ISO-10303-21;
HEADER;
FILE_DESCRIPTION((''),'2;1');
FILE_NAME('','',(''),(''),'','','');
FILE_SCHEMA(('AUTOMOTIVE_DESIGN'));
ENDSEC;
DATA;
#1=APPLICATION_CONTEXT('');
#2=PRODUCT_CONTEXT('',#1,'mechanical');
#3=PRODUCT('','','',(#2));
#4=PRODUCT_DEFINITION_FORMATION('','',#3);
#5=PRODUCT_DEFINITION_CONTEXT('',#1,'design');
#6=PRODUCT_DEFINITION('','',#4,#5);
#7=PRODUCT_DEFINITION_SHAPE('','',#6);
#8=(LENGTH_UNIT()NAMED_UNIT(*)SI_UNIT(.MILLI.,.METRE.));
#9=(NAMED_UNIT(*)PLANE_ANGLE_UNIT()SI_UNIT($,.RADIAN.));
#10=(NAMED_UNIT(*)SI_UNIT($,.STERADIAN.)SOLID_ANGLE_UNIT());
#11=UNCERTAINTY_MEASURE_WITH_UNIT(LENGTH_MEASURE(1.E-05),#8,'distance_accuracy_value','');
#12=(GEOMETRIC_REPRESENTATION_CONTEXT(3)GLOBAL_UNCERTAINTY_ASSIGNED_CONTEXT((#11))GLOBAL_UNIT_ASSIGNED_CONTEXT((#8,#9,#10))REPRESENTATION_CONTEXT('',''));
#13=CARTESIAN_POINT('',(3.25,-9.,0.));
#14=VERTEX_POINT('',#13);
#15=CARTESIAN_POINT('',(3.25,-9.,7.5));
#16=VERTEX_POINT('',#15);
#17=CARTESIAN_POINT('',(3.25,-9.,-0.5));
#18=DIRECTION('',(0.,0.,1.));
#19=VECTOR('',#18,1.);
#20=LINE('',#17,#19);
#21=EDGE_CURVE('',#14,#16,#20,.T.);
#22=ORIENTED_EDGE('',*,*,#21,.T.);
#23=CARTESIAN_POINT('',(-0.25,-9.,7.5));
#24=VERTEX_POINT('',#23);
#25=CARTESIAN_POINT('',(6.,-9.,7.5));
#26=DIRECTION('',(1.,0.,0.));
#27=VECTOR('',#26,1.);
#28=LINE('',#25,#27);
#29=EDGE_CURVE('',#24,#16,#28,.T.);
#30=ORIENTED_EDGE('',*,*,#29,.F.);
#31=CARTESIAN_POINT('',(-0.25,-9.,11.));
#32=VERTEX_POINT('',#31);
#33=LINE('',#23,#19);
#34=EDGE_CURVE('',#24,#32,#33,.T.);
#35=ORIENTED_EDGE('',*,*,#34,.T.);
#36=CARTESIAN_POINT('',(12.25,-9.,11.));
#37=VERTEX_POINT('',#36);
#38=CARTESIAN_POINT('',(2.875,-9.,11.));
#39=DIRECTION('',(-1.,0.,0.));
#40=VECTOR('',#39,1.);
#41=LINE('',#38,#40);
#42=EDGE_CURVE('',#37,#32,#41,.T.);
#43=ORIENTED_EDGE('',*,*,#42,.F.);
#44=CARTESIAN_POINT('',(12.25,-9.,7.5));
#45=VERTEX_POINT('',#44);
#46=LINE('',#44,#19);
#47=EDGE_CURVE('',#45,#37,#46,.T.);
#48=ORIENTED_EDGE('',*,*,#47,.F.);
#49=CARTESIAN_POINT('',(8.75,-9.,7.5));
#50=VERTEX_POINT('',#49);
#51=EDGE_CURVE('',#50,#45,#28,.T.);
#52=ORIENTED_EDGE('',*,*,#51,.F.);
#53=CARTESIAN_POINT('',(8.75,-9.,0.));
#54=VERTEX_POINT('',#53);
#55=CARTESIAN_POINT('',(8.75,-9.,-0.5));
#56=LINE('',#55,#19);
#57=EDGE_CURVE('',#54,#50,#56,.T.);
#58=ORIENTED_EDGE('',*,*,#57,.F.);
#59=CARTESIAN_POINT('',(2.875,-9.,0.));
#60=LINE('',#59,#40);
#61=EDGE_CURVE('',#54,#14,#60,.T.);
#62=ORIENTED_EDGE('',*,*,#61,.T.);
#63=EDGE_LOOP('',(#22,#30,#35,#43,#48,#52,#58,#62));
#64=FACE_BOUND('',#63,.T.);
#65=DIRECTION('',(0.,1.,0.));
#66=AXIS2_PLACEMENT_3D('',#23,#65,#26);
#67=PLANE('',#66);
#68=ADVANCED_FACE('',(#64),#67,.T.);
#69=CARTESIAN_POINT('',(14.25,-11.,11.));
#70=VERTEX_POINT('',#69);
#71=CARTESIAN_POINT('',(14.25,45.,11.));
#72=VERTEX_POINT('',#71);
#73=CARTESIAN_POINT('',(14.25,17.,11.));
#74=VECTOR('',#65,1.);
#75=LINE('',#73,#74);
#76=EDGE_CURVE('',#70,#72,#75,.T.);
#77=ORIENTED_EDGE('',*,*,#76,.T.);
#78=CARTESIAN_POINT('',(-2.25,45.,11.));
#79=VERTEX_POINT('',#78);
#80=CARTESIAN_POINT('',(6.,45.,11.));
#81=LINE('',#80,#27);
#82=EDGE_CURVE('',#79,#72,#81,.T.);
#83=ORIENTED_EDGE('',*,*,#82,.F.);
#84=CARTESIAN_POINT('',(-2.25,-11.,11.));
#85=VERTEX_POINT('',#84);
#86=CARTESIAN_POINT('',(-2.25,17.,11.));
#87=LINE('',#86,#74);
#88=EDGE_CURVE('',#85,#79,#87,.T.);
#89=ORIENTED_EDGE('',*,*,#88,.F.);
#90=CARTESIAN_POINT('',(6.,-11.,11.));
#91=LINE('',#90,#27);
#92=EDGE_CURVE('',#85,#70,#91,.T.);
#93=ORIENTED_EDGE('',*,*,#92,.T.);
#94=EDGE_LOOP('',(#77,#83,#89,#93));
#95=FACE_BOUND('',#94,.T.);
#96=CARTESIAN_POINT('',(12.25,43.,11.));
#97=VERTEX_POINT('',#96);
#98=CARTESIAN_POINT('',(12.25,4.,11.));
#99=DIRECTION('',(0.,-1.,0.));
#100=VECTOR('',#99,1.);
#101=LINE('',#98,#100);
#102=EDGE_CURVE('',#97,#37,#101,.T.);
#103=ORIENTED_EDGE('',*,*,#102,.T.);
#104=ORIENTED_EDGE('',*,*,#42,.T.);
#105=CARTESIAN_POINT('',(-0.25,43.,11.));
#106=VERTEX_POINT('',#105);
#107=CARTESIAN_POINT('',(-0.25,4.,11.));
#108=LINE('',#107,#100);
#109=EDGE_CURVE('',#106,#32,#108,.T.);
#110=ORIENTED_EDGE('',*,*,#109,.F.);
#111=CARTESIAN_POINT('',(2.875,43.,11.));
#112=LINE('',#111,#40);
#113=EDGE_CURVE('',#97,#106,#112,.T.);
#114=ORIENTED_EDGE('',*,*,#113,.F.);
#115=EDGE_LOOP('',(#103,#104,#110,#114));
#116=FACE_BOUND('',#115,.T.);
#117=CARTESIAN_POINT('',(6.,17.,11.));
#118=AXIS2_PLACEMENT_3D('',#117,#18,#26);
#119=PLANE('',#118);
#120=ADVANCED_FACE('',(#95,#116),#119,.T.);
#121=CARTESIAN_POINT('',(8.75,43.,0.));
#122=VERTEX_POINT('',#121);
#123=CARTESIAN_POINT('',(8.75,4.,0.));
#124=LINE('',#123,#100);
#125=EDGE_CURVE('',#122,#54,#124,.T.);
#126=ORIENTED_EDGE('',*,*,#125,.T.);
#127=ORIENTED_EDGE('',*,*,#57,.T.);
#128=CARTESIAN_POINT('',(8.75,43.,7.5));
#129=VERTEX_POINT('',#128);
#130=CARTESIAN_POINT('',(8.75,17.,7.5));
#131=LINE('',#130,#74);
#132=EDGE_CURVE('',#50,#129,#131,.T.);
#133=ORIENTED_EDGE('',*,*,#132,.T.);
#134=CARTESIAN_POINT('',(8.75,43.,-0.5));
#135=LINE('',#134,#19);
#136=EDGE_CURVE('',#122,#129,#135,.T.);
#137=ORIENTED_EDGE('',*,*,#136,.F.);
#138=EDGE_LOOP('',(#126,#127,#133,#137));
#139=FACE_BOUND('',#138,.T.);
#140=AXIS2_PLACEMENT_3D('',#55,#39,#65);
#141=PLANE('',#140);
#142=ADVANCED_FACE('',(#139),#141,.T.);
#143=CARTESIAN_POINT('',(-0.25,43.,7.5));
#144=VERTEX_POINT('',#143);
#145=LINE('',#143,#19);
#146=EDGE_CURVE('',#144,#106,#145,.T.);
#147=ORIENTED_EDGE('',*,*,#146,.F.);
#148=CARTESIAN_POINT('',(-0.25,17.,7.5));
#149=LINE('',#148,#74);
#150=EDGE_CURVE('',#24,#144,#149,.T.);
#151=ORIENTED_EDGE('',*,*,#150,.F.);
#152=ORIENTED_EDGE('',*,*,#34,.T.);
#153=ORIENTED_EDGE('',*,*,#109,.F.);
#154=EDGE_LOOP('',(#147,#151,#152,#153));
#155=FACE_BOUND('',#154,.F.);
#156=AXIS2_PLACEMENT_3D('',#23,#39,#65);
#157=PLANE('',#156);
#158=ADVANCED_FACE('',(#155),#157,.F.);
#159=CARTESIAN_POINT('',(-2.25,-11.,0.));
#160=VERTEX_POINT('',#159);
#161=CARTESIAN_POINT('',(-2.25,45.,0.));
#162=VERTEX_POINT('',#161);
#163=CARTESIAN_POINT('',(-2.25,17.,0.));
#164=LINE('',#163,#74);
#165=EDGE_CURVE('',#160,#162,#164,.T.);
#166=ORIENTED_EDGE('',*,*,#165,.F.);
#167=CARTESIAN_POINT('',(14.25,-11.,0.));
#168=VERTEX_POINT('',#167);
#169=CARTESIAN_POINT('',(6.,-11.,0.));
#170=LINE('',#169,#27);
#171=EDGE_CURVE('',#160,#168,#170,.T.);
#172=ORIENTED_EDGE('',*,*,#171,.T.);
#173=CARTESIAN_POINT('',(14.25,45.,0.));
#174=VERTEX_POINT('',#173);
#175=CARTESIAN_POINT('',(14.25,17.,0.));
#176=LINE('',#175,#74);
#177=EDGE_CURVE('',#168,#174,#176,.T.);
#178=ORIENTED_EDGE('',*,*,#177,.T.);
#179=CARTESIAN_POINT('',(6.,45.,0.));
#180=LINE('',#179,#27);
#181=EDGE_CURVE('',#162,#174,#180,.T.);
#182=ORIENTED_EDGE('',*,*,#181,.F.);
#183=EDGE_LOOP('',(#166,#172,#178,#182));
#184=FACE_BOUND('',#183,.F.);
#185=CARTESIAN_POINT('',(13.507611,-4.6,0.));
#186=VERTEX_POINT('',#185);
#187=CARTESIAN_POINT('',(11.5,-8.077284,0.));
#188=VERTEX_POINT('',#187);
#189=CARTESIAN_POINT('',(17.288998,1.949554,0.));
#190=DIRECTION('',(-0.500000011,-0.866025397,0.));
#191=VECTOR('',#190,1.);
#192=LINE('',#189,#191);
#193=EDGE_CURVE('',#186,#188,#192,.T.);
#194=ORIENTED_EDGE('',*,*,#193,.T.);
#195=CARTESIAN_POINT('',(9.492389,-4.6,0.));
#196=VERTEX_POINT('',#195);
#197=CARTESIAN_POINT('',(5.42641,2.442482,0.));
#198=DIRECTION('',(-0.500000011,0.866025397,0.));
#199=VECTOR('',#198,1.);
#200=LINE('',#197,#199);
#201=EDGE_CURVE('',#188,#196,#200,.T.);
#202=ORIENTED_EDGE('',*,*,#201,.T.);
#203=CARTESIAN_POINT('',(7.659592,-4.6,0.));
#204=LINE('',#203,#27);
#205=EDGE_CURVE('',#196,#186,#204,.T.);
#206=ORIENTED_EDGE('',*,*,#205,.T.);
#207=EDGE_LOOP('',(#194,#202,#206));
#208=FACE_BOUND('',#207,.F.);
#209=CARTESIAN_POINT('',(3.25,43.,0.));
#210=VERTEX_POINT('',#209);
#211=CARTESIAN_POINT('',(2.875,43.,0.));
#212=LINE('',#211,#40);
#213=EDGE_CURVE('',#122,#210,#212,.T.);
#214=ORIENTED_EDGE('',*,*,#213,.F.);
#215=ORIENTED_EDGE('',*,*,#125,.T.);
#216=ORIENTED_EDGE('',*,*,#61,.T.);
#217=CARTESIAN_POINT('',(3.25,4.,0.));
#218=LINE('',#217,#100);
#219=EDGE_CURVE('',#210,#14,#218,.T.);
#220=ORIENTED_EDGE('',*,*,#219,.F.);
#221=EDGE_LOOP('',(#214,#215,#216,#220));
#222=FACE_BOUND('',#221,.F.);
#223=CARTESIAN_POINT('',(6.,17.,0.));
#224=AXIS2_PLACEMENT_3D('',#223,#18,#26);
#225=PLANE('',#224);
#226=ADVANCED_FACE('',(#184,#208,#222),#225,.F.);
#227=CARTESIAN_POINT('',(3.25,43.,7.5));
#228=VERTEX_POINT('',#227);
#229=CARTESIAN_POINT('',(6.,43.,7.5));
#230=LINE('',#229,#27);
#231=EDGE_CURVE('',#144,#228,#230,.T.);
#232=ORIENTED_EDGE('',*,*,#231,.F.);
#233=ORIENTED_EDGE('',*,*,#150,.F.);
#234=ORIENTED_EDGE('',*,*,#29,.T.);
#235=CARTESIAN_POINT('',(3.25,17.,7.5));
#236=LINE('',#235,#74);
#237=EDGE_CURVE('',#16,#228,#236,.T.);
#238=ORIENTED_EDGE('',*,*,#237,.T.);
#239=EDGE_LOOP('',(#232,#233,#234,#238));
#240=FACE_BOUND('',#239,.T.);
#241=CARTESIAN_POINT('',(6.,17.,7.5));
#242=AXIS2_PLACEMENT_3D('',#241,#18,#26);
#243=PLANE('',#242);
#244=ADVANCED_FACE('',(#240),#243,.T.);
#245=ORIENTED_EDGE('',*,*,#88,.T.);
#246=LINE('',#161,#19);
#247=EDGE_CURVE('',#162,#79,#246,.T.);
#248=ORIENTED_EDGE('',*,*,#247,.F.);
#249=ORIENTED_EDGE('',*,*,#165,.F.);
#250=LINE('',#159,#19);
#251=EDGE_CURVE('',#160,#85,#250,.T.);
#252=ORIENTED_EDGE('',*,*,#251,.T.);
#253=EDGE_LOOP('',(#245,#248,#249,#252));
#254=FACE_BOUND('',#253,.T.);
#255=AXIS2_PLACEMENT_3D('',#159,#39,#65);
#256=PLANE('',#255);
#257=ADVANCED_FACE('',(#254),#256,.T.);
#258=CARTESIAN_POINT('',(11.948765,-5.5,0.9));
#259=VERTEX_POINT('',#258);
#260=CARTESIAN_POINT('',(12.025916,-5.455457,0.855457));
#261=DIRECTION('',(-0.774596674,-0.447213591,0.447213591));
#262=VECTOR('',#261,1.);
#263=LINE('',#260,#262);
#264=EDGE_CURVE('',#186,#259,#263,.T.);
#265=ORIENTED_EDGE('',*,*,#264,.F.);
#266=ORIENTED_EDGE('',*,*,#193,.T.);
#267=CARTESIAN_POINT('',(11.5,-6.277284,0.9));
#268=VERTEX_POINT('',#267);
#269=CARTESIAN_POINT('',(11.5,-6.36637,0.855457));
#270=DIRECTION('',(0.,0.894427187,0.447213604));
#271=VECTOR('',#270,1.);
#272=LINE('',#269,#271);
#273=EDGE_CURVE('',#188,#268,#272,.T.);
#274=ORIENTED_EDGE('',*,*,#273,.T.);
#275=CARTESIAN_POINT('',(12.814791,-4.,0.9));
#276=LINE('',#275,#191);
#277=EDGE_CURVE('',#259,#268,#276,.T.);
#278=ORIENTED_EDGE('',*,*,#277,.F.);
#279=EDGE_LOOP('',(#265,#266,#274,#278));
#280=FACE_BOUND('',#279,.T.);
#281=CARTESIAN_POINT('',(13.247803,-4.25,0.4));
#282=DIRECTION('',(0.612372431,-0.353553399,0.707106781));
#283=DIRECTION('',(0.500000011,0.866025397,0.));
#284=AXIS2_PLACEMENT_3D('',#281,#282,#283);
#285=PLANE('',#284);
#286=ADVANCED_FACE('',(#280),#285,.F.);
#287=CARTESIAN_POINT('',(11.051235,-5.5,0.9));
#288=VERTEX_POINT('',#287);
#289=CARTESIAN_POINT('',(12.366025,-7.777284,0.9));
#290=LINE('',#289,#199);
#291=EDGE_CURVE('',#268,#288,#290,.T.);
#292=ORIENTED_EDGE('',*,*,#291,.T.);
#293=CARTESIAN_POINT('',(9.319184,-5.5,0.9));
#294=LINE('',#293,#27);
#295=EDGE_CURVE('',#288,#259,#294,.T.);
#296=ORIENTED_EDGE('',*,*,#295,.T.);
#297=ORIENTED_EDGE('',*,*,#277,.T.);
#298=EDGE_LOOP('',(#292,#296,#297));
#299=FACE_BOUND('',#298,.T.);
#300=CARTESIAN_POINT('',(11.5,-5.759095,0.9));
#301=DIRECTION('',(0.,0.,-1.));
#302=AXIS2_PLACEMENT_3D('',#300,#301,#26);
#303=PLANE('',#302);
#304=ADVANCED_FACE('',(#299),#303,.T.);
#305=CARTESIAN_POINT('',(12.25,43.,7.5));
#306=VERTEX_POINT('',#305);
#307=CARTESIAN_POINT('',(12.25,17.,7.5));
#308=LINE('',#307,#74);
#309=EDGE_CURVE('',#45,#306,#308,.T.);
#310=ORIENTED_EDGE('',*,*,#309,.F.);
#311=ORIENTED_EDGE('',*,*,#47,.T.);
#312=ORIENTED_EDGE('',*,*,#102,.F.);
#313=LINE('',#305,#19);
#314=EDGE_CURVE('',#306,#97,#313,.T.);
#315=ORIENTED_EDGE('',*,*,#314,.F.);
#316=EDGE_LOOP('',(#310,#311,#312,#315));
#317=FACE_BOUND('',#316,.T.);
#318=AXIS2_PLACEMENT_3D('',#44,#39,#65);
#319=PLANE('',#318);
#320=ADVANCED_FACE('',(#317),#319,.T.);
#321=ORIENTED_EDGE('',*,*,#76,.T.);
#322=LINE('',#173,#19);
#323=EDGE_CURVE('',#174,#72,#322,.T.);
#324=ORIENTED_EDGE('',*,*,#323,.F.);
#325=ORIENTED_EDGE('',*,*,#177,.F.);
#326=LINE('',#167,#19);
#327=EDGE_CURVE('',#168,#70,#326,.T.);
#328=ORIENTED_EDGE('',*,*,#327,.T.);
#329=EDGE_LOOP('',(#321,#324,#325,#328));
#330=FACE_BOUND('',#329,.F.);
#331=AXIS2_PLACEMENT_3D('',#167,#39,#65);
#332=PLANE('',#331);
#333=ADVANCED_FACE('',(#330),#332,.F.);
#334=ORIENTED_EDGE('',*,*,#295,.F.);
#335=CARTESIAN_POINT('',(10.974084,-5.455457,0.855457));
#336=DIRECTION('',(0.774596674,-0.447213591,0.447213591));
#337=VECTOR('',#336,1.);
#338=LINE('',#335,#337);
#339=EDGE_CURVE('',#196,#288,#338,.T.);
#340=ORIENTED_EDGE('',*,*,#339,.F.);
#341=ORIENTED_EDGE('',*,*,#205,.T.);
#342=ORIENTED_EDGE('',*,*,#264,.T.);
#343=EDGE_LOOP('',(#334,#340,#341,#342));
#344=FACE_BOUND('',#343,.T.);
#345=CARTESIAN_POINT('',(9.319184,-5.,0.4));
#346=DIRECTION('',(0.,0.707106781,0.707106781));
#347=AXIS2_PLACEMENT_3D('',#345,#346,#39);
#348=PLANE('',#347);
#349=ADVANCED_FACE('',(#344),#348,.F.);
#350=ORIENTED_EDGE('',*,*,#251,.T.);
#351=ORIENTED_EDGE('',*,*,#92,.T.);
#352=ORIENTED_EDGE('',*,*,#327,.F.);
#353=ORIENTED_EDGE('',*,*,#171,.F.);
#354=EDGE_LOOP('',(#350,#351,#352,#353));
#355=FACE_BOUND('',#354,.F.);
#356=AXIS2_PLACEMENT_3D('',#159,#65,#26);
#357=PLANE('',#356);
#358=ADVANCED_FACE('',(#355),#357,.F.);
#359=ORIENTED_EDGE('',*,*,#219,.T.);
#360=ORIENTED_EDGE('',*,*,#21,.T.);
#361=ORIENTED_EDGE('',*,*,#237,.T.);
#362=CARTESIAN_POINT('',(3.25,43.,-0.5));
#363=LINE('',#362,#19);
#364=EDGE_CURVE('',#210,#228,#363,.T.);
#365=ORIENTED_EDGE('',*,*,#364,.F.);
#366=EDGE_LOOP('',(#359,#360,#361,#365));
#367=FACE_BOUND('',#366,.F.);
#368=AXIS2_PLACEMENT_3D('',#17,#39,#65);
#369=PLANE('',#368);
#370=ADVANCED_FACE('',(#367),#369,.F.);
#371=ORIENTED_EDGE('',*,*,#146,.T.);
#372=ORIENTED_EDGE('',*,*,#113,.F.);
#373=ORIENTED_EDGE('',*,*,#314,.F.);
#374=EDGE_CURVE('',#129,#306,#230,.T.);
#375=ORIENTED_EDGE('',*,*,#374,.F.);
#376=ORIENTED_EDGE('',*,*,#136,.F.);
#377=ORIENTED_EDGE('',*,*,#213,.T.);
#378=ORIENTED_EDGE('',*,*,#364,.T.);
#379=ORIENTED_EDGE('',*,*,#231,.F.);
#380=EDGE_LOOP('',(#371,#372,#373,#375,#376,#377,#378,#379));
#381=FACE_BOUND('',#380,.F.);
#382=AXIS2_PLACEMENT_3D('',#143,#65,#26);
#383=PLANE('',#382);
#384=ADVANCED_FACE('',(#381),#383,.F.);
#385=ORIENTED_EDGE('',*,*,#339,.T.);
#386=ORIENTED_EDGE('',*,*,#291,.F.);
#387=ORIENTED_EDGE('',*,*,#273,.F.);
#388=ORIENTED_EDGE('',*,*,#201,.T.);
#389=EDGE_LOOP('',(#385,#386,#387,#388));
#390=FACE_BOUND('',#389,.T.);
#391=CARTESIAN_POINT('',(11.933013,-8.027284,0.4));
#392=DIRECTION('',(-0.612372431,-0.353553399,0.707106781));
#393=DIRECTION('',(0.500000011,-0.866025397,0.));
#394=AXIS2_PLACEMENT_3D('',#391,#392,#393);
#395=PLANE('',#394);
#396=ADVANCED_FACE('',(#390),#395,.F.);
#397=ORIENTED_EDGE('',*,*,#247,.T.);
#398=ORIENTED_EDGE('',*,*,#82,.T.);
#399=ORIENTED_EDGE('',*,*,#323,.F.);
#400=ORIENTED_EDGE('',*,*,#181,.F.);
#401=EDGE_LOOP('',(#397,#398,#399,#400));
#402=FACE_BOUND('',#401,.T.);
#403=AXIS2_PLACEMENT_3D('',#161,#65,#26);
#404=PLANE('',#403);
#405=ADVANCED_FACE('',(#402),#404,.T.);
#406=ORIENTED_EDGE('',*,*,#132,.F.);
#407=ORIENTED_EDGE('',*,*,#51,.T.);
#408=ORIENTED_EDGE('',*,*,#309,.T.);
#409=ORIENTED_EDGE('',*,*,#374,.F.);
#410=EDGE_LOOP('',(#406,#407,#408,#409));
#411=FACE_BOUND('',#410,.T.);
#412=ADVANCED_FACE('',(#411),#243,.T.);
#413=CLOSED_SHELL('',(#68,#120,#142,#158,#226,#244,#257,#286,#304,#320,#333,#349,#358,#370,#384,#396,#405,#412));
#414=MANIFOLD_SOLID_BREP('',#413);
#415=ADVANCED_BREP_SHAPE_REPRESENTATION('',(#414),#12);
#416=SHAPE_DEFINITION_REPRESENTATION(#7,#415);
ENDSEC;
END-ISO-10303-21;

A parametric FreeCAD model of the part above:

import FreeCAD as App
import Part
import Sketcher
from FreeCAD import Vector
Q = App.Units.Quantity


def edges_at(feature, points):
    """Names of the edges that pass closest to the given points."""
    edges = feature.Shape.Edges
    near = lambda p: min(range(len(edges)), key=lambda i: edges[i].distToShape(Part.Vertex(*p))[0])
    return sorted({f"Edge{near(p) + 1}" for p in points})

doc = App.newDocument("Part")
params = doc.addObject("Spreadsheet::Sheet", "Params")
for row, (alias, value) in enumerate([
    ("sketch1_height", "52 mm"),
    ("sketch1_width", "5.5 mm"),
    ("pad1_length", "8 mm"),
    ("pad2_length", "1.1 mm"),
    ("chamfer_size", "1 mm"),
    ("sketch3_height", "52 mm"),
    ("sketch3_width", "12.5 mm"),
    ("pad3_length", "4 mm"),
    ("sketch4_height", "56 mm"),
    ("sketch4_width", "16.5 mm"),
    ("pad4_length", "11 mm"),
], start=1):
    params.set(f"A{row}", alias)
    params.set(f"B{row}", "=" + value)
    params.setAlias(f"B{row}", alias)

body = doc.addObject("PartDesign::Body", "Body")

# Sketch on XY plane
sketch1 = body.newObject("Sketcher::SketchObject", "Sketch")
sketch1.AttachmentSupport = (doc.getObject("XY_Plane"), [""])
sketch1.MapMode = "FlatFace"
sketch1.AttachmentOffset = App.Placement(Vector(0, 0, -0.5), App.Rotation())
sketch1.addGeometry([
    Part.LineSegment(Vector(3, 43, 0), Vector(3, -9, 0)),
    Part.LineSegment(Vector(3, -9, 0), Vector(9, -9, 0)),
    Part.LineSegment(Vector(9, -9, 0), Vector(9, 43, 0)),
    Part.LineSegment(Vector(9, 43, 0), Vector(3, 43, 0)),
], False)
sketch1.addConstraint([
    Sketcher.Constraint("Coincident", 0, 2, 1, 1),
    Sketcher.Constraint("Coincident", 1, 2, 2, 1),
    Sketcher.Constraint("Coincident", 2, 2, 3, 1),
    Sketcher.Constraint("Coincident", 3, 2, 0, 1),
    Sketcher.Constraint("Vertical", 0),
    Sketcher.Constraint("Horizontal", 1),
    Sketcher.Constraint("Vertical", 2),
    Sketcher.Constraint("Horizontal", 3),
    Sketcher.Constraint("DistanceY", 0, 2, 0, 1, Q("52 mm")),
    Sketcher.Constraint("DistanceX", 1, 1, 1, 2, Q("5.5 mm")),
    Sketcher.Constraint("DistanceY", 0, 2, -1, 1, Q("9 mm")),
    Sketcher.Constraint("DistanceX", -1, 1, 0, 2, Q("3.25 mm")),
])
sketch1.setExpression("Constraints[8]", "Params.sketch1_height")
sketch1.setExpression("Constraints[9]", "Params.sketch1_width")
pad1 = body.newObject("PartDesign::Pad", "Pad")
pad1.Profile = sketch1
pad1.setExpression("Length", "Params.pad1_length")
body2 = doc.addObject("PartDesign::Body", "Body001")

# Sketch on XY plane
sketch2 = body2.newObject("Sketcher::SketchObject", "Sketch001")
sketch2.AttachmentSupport = (doc.getObject("XY_Plane001"), [""])
sketch2.MapMode = "FlatFace"
sketch2.addGeometry([
    Part.LineSegment(Vector(0, 20.8, 0), Vector(-2.2, 17, 0)),
    Part.LineSegment(Vector(-2.2, 17, 0), Vector(2.2, 17, 0)),
    Part.LineSegment(Vector(2.2, 17, 0), Vector(0, 20.8, 0)),
], False)
sketch2.addConstraint([
    Sketcher.Constraint("Coincident", 0, 2, 1, 1),
    Sketcher.Constraint("Coincident", 1, 2, 2, 1),
    Sketcher.Constraint("Coincident", 2, 2, 0, 1),
    Sketcher.Constraint("Horizontal", 1),
    Sketcher.Constraint("PointOnObject", 2, 2, -2),
    Sketcher.Constraint("Equal", 0, 2),
    Sketcher.Constraint("Angle", 0, Q("-120.000001 deg")),
    Sketcher.Constraint("DistanceY", -1, 1, 0, 2, Q("17 mm")),
    Sketcher.Constraint("Distance", 0, Q("4.361632 mm")),
])
pad2 = body2.newObject("PartDesign::Pad", "Pad001")
pad2.Profile = sketch2
pad2.setExpression("Length", "Params.pad2_length")
doc.recompute()

chamfer = body2.newObject("PartDesign::Chamfer", "Chamfer")
chamfer.Base = (pad2, edges_at(pad2, [(-1.09, 18.889, 0), (0, 17, 0), (1.09, 18.889, 0)]))
chamfer.setExpression("Size", "Params.chamfer_size")
body3 = doc.addObject("PartDesign::Body", "Body002")
doc.recompute()

body2.Placement = App.Placement(Vector(11.5, 12.5, 0.9), App.Rotation(Vector(1, 0, 0), 180))
boolean = body3.newObject("PartDesign::Boolean", "Boolean")
boolean.Type = "Fuse"
boolean.addObjects([body2])
body4 = doc.addObject("PartDesign::Body", "Body003")
body4.AllowCompound = True

# Sketch on XY plane
sketch3 = body4.newObject("Sketcher::SketchObject", "Sketch002")
sketch3.AttachmentSupport = (doc.getObject("XY_Plane003"), [""])
sketch3.MapMode = "FlatFace"
sketch3.AttachmentOffset = App.Placement(Vector(0, 0, 7.5), App.Rotation())
sketch3.addGeometry([
    Part.LineSegment(Vector(0, 43, 0), Vector(0, -9, 0)),
    Part.LineSegment(Vector(0, -9, 0), Vector(12, -9, 0)),
    Part.LineSegment(Vector(12, -9, 0), Vector(12, 43, 0)),
    Part.LineSegment(Vector(12, 43, 0), Vector(0, 43, 0)),
], False)
sketch3.addConstraint([
    Sketcher.Constraint("Coincident", 0, 2, 1, 1),
    Sketcher.Constraint("Coincident", 1, 2, 2, 1),
    Sketcher.Constraint("Coincident", 2, 2, 3, 1),
    Sketcher.Constraint("Coincident", 3, 2, 0, 1),
    Sketcher.Constraint("Vertical", 0),
    Sketcher.Constraint("Horizontal", 1),
    Sketcher.Constraint("Vertical", 2),
    Sketcher.Constraint("Horizontal", 3),
    Sketcher.Constraint("DistanceY", 0, 2, 0, 1, Q("52 mm")),
    Sketcher.Constraint("DistanceX", 1, 1, 1, 2, Q("12.5 mm")),
    Sketcher.Constraint("DistanceY", 0, 2, -1, 1, Q("9 mm")),
    Sketcher.Constraint("DistanceX", 0, 2, -1, 1, Q("0.25 mm")),
])
sketch3.setExpression("Constraints[8]", "Params.sketch3_height")
sketch3.setExpression("Constraints[9]", "Params.sketch3_width")
pad3 = body4.newObject("PartDesign::Pad", "Pad002")
pad3.Profile = sketch3
pad3.setExpression("Length", "Params.pad3_length")
doc.recompute()

boolean2 = body4.newObject("PartDesign::Boolean", "Boolean001")
boolean2.Type = "Fuse"
boolean2.addObjects([body])
doc.recompute()

boolean3 = body4.newObject("PartDesign::Boolean", "Boolean002")
boolean3.Type = "Fuse"
boolean3.addObjects([body3])
body5 = doc.addObject("PartDesign::Body", "Body004")

# Sketch on XY plane
sketch4 = body5.newObject("Sketcher::SketchObject", "Sketch003")
sketch4.AttachmentSupport = (doc.getObject("XY_Plane004"), [""])
sketch4.MapMode = "FlatFace"
sketch4.addGeometry([
    Part.LineSegment(Vector(-2, 45, 0), Vector(-2, -11, 0)),
    Part.LineSegment(Vector(-2, -11, 0), Vector(14, -11, 0)),
    Part.LineSegment(Vector(14, -11, 0), Vector(14, 45, 0)),
    Part.LineSegment(Vector(14, 45, 0), Vector(-2, 45, 0)),
], False)
sketch4.addConstraint([
    Sketcher.Constraint("Coincident", 0, 2, 1, 1),
    Sketcher.Constraint("Coincident", 1, 2, 2, 1),
    Sketcher.Constraint("Coincident", 2, 2, 3, 1),
    Sketcher.Constraint("Coincident", 3, 2, 0, 1),
    Sketcher.Constraint("Vertical", 0),
    Sketcher.Constraint("Horizontal", 1),
    Sketcher.Constraint("Vertical", 2),
    Sketcher.Constraint("Horizontal", 3),
    Sketcher.Constraint("DistanceY", 0, 2, 0, 1, Q("56 mm")),
    Sketcher.Constraint("DistanceX", 1, 1, 1, 2, Q("16.5 mm")),
    Sketcher.Constraint("DistanceY", 0, 2, -1, 1, Q("11 mm")),
    Sketcher.Constraint("DistanceX", 0, 2, -1, 1, Q("2.25 mm")),
])
sketch4.setExpression("Constraints[8]", "Params.sketch4_height")
sketch4.setExpression("Constraints[9]", "Params.sketch4_width")
pad4 = body5.newObject("PartDesign::Pad", "Pad003")
pad4.Profile = sketch4
pad4.setExpression("Length", "Params.pad4_length")
doc.recompute()

boolean4 = body5.newObject("PartDesign::Boolean", "Boolean003")
boolean4.Type = "Cut"
boolean4.addObjects([body4])

doc.recompute()
